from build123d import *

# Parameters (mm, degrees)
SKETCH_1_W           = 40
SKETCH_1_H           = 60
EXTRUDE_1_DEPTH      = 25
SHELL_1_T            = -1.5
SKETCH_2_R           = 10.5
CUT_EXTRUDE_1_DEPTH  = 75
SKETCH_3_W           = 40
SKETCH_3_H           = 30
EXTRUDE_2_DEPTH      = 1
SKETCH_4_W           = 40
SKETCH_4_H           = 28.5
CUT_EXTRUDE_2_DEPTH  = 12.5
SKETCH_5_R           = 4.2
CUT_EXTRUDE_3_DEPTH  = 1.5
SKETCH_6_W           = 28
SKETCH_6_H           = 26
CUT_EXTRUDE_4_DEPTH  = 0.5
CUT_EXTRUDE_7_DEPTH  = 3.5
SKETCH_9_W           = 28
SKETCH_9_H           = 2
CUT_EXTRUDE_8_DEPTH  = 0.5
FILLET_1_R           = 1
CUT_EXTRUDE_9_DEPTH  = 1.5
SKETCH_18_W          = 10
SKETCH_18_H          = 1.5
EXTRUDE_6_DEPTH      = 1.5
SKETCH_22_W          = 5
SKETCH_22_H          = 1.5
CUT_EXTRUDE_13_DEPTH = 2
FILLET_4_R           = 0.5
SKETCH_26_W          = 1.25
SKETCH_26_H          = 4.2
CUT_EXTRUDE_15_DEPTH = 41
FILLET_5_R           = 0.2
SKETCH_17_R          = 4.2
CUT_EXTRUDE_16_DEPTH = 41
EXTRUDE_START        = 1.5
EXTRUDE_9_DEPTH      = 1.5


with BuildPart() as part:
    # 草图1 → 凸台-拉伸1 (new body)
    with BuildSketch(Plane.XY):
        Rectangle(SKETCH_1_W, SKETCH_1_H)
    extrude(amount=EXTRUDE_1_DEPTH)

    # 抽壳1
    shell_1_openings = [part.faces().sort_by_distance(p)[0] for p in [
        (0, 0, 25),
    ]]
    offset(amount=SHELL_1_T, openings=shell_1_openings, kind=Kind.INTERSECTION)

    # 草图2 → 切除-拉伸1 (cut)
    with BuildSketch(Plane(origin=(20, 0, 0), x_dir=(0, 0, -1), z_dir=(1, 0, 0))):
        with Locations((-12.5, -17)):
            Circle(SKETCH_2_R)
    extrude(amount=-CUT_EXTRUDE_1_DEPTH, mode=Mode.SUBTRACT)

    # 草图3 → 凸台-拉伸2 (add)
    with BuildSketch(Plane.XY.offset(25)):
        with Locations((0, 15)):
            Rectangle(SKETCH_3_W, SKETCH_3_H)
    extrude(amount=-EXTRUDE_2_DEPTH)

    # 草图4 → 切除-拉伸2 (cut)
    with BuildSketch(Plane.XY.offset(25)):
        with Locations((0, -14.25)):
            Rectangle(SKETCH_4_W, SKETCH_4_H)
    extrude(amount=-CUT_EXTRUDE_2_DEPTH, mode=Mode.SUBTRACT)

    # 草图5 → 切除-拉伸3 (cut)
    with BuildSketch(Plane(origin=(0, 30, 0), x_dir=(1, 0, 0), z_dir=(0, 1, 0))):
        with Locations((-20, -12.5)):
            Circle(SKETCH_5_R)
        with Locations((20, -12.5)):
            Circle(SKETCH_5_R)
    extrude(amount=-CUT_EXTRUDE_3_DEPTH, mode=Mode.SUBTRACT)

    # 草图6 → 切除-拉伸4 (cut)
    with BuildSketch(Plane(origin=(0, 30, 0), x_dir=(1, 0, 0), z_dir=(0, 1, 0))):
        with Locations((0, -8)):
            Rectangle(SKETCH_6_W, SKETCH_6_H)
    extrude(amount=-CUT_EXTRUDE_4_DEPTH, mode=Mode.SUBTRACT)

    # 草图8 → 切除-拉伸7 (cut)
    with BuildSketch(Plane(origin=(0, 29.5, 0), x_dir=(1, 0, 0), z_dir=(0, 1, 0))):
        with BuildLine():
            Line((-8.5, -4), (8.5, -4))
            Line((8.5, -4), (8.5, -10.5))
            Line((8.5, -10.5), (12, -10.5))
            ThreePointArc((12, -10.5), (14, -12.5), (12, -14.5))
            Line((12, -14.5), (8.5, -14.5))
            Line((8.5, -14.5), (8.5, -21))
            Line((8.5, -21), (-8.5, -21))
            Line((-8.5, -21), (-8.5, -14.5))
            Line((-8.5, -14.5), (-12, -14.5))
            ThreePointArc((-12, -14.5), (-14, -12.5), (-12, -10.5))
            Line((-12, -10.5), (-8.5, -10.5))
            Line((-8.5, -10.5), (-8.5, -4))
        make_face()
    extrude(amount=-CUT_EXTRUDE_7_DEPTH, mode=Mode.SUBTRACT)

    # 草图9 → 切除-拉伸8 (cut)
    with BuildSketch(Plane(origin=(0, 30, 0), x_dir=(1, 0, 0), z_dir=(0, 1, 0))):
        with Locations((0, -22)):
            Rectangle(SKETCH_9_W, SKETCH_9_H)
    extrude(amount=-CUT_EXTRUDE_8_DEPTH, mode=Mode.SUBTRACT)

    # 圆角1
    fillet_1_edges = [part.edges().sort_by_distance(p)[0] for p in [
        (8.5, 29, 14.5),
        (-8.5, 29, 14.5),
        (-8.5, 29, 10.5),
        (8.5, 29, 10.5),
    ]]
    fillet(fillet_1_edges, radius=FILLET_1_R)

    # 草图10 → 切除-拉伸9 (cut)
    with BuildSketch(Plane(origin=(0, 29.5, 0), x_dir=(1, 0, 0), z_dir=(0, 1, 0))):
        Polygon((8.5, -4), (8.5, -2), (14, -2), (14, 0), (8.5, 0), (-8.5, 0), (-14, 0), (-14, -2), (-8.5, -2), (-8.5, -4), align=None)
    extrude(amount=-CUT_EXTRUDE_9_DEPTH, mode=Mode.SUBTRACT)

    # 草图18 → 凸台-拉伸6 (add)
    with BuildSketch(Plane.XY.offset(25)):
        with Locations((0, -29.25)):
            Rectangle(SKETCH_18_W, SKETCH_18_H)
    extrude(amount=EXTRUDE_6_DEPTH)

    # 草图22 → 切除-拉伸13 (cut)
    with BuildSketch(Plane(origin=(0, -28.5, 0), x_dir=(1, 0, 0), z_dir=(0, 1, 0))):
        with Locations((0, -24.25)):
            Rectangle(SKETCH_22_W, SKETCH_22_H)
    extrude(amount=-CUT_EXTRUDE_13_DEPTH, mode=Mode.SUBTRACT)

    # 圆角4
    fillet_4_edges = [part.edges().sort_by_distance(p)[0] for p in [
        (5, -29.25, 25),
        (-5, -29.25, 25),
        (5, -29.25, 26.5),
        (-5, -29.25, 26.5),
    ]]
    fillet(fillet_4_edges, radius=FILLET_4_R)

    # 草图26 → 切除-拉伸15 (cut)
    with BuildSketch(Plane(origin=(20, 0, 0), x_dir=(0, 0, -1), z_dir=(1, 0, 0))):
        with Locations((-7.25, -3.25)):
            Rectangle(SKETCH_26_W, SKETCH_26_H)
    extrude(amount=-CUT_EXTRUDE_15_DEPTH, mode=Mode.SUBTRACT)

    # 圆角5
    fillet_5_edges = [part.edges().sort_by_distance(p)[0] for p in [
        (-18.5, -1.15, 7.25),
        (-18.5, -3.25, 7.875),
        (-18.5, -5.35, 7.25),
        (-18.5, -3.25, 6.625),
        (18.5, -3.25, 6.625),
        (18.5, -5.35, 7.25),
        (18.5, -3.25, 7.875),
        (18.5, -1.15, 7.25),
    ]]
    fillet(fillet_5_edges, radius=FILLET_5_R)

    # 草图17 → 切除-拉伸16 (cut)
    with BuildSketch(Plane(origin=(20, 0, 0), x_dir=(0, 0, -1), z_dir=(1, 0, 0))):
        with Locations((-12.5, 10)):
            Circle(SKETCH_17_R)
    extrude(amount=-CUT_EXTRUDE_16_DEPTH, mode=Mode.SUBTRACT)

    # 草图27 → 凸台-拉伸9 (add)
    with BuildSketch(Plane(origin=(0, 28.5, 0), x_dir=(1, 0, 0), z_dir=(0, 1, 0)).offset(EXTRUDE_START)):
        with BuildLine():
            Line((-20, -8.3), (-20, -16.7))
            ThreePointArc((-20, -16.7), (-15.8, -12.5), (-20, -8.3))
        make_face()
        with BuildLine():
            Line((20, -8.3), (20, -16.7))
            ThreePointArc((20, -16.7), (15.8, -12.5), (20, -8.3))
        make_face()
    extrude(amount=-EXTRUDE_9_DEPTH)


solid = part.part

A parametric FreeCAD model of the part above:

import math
import FreeCAD as App
import Part
import Sketcher
from FreeCAD import Vector
Q = App.Units.Quantity


def edges_at(feature, points):
    """Names of the edges that pass closest to the given points."""
    edges = feature.Shape.Edges
    near = lambda p: min(range(len(edges)), key=lambda i: edges[i].distToShape(Part.Vertex(*p))[0])
    return sorted({f"Edge{near(p) + 1}" for p in points})


def faces_at(feature, points):
    """Names of the faces that lie closest to the given points."""
    faces = feature.Shape.Faces
    near = lambda p: min(range(len(faces)), key=lambda i: faces[i].distToShape(Part.Vertex(*p))[0])
    return sorted({f"Face{near(p) + 1}" for p in points})


def add_polygon(sketch, points):
    """Adds a closed chain of lines whose ends are joined by coincident constraints."""
    first, n = sketch.GeometryCount, len(points)
    for a, b in zip(points, points[1:] + points[:1]):
        sketch.addGeometry(Part.LineSegment(App.Vector(*a, 0), App.Vector(*b, 0)), False)
    for i in range(n):
        sketch.addConstraint(Sketcher.Constraint("Coincident", first + i, 2, first + (i + 1) % n, 1))

doc = App.newDocument("Part")
body = doc.addObject("PartDesign::Body", "Body")

sketch1 = body.newObject("Sketcher::SketchObject", "Sketch")
sketch1.AttachmentSupport = (doc.getObject("XY_Plane"), [""])
sketch1.MapMode = "FlatFace"
add_polygon(sketch1, [(-20, 30), (-20, -30), (20, -30), (20, 30)])
sketch1.addConstraint(Sketcher.Constraint("Vertical", 0))
sketch1.addConstraint(Sketcher.Constraint("Horizontal", 1))
sketch1.addConstraint(Sketcher.Constraint("Vertical", 2))
sketch1.addConstraint(Sketcher.Constraint("Horizontal", 3))
sketch1.addConstraint(Sketcher.Constraint("Symmetric", 0, 2, 2, 2, -1, 1))
sketch1.addConstraint(Sketcher.Constraint("DistanceX", 1, 1, 1, 2, Q("40 mm")))
sketch1.addConstraint(Sketcher.Constraint("DistanceY", 0, 2, 0, 1, Q("60 mm")))
pad1 = body.newObject("PartDesign::Pad", "Pad")
pad1.Profile = sketch1
pad1.Length = 25
doc.recompute()

thickness = body.newObject("PartDesign::Thickness", "Thickness")
thickness.Base = (pad1, faces_at(pad1, [(0, 0, 25)]))
thickness.Value = 1.5
thickness.Reversed = True
thickness.Join = "Intersection"

sketch2 = body.newObject("Sketcher::SketchObject", "Sketch001")
sketch2.AttachmentSupport = (doc.getObject("YZ_Plane"), [""])
sketch2.MapMode = "FlatFace"
sketch2.AttachmentOffset = App.Placement(Vector(0, 0, 20), App.Rotation())
sketch2.addGeometry(Part.Circle(Vector(-17, 12, 0), Vector(0, 0, 1), 10), False)
sketch2.addConstraint(Sketcher.Constraint("Diameter", 0, Q("21 mm")))
sketch2.addConstraint(Sketcher.Constraint("DistanceX", 0, 3, -1, 1, Q("17 mm")))
sketch2.addConstraint(Sketcher.Constraint("DistanceY", -1, 1, 0, 3, Q("12.5 mm")))
pocket1 = body.newObject("PartDesign::Pocket", "Pocket")
pocket1.Profile = sketch2
pocket1.Length = 75

sketch3 = body.newObject("Sketcher::SketchObject", "Sketch002")
sketch3.AttachmentSupport = (doc.getObject("XY_Plane"), [""])
sketch3.MapMode = "FlatFace"
sketch3.AttachmentOffset = App.Placement(Vector(0, 0, 25), App.Rotation())
add_polygon(sketch3, [(-20, 30), (-20, 0), (20, 0), (20, 30)])
sketch3.addConstraint(Sketcher.Constraint("Vertical", 0))
sketch3.addConstraint(Sketcher.Constraint("Horizontal", 1))
sketch3.addConstraint(Sketcher.Constraint("Vertical", 2))
sketch3.addConstraint(Sketcher.Constraint("Horizontal", 3))
sketch3.addConstraint(Sketcher.Constraint("Symmetric", 0, 2, 1, 2, -1, 1))
sketch3.addConstraint(Sketcher.Constraint("DistanceX", 1, 1, 1, 2, Q("40 mm")))
sketch3.addConstraint(Sketcher.Constraint("DistanceY", 0, 2, 0, 1, Q("30 mm")))
pad2 = body.newObject("PartDesign::Pad", "Pad001")
pad2.Profile = sketch3
pad2.Length = 1
pad2.Reversed = True

sketch4 = body.newObject("Sketcher::SketchObject", "Sketch003")
sketch4.AttachmentSupport = (doc.getObject("XY_Plane"), [""])
sketch4.MapMode = "FlatFace"
sketch4.AttachmentOffset = App.Placement(Vector(0, 0, 25), App.Rotation())
add_polygon(sketch4, [(-20, 0), (-20, -28), (20, -28), (20, 0)])
sketch4.addConstraint(Sketcher.Constraint("Vertical", 0))
sketch4.addConstraint(Sketcher.Constraint("Horizontal", 1))
sketch4.addConstraint(Sketcher.Constraint("Vertical", 2))
sketch4.addConstraint(Sketcher.Constraint("Horizontal", 3))
sketch4.addConstraint(Sketcher.Constraint("Symmetric", 2, 2, 3, 2, -1, 1))
sketch4.addConstraint(Sketcher.Constraint("DistanceX", 1, 1, 1, 2, Q("40 mm")))
sketch4.addConstraint(Sketcher.Constraint("DistanceY", 0, 2, 0, 1, Q("28.5 mm")))
pocket2 = body.newObject("PartDesign::Pocket", "Pocket001")
pocket2.Profile = sketch4
pocket2.Length = 12.5

sketch5 = body.newObject("Sketcher::SketchObject", "Sketch004")
sketch5.AttachmentSupport = (doc.getObject("XZ_Plane"), [""])
sketch5.MapMode = "FlatFace"
sketch5.AttachmentOffset = App.Placement(Vector(0, 0, -30), App.Rotation())
sketch5.addGeometry(Part.Circle(Vector(-20, 12.5, 0), Vector(0, 0, 1), 4.2), False)
sketch5.addGeometry(Part.Circle(Vector(20, 12.5, 0), Vector(0, 0, 1), 4.2), False)
sketch5.addConstraint(Sketcher.Constraint("Equal", 0, 1))
sketch5.addConstraint(Sketcher.Constraint("Symmetric", 0, 3, 1, 3, -2))
sketch5.addConstraint(Sketcher.Constraint("Diameter", 0, Q("8.4 mm")))
sketch5.addConstraint(Sketcher.Constraint("DistanceX", 0, 3, -1, 1, Q("20 mm")))
sketch5.addConstraint(Sketcher.Constraint("DistanceY", -1, 1, 0, 3, Q("12.5 mm")))
pocket3 = body.newObject("PartDesign::Pocket", "Pocket002")
pocket3.Profile = sketch5
pocket3.Length = 1.5
pocket3.Reversed = True

sketch6 = body.newObject("Sketcher::SketchObject", "Sketch005")
sketch6.AttachmentSupport = (doc.getObject("XZ_Plane"), [""])
sketch6.MapMode = "FlatFace"
sketch6.AttachmentOffset = App.Placement(Vector(0, 0, -30), App.Rotation())
add_polygon(sketch6, [(-14, -5), (-14, 21), (14, 21), (14, -5)])
sketch6.addConstraint(Sketcher.Constraint("Vertical", 0))
sketch6.addConstraint(Sketcher.Constraint("Horizontal", 1))
sketch6.addConstraint(Sketcher.Constraint("Vertical", 2))
sketch6.addConstraint(Sketcher.Constraint("Horizontal", 3))
sketch6.addConstraint(Sketcher.Constraint("DistanceX", 1, 1, 1, 2, Q("28 mm")))
sketch6.addConstraint(Sketcher.Constraint("DistanceY", 0, 1, 0, 2, Q("26 mm")))
sketch6.addConstraint(Sketcher.Constraint("DistanceX", 0, 2, -1, 1, Q("14 mm")))
sketch6.addConstraint(Sketcher.Constraint("DistanceY", -1, 1, 0, 2, Q("21 mm")))
pocket4 = body.newObject("PartDesign::Pocket", "Pocket003")
pocket4.Profile = sketch6
pocket4.Length = 0.5
pocket4.Reversed = True

sketch7 = body.newObject("Sketcher::SketchObject", "Sketch006")
sketch7.AttachmentSupport = (doc.getObject("XZ_Plane"), [""])
sketch7.MapMode = "FlatFace"
sketch7.AttachmentOffset = App.Placement(Vector(0, 0, -29.5), App.Rotation())
sketch7.addGeometry(Part.LineSegment(Vector(8.5, 4, 0), Vector(-8.5, 4, 0)), False)
sketch7.addGeometry(Part.LineSegment(Vector(-8.5, 4, 0), Vector(-8.5, 10.5, 0)), False)
sketch7.addGeometry(Part.LineSegment(Vector(-8.5, 10.5, 0), Vector(-12, 10.5, 0)), False)
sketch7.addGeometry(Part.ArcOfCircle(Part.Circle(Vector(-12, 12.5, 0), Vector(0, 0, 1), 2), math.radians(90), math.radians(270)), False)
sketch7.addGeometry(Part.LineSegment(Vector(-12, 14.5, 0), Vector(-8.5, 14.5, 0)), False)
sketch7.addGeometry(Part.LineSegment(Vector(-8.5, 14.5, 0), Vector(-8.5, 21, 0)), False)
sketch7.addGeometry(Part.LineSegment(Vector(-8.5, 21, 0), Vector(8.5, 21, 0)), False)
sketch7.addGeometry(Part.LineSegment(Vector(8.5, 21, 0), Vector(8.5, 14.5, 0)), False)
sketch7.addGeometry(Part.LineSegment(Vector(8.5, 14.5, 0), Vector(12, 14.5, 0)), False)
sketch7.addGeometry(Part.ArcOfCircle(Part.Circle(Vector(12, 12.5, 0), Vector(0, 0, 1), 2), math.radians(-90), math.radians(90)), False)
sketch7.addGeometry(Part.LineSegment(Vector(12, 10.5, 0), Vector(8.5, 10.5, 0)), False)
sketch7.addGeometry(Part.LineSegment(Vector(8.5, 10.5, 0), Vector(8.5, 4, 0)), False)
sketch7.addConstraint(Sketcher.Constraint("Coincident", 0, 2, 1, 1))
sketch7.addConstraint(Sketcher.Constraint("Coincident", 1, 2, 2, 1))
sketch7.addConstraint(Sketcher.Constraint("Tangent", 2, 2, 3, 2))
sketch7.addConstraint(Sketcher.Constraint("Tangent", 3, 1, 4, 1))
sketch7.addConstraint(Sketcher.Constraint("Coincident", 4, 2, 5, 1))
sketch7.addConstraint(Sketcher.Constraint("Coincident", 5, 2, 6, 1))
sketch7.addConstraint(Sketcher.Constraint("Coincident", 6, 2, 7, 1))
sketch7.addConstraint(Sketcher.Constraint("Coincident", 7, 2, 8, 1))
sketch7.addConstraint(Sketcher.Constraint("Tangent", 8, 2, 9, 2))
sketch7.addConstraint(Sketcher.Constraint("Tangent", 9, 1, 10, 1))
sketch7.addConstraint(Sketcher.Constraint("Coincident", 10, 2, 11, 1))
sketch7.addConstraint(Sketcher.Constraint("Coincident", 11, 2, 0, 1))
sketch7.addConstraint(Sketcher.Constraint("Horizontal", 0))
sketch7.addConstraint(Sketcher.Constraint("Vertical", 1))
sketch7.addConstraint(Sketcher.Constraint("Horizontal", 2))
sketch7.addConstraint(Sketcher.Constraint("Horizontal", 4))
sketch7.addConstraint(Sketcher.Constraint("Vertical", 5))
sketch7.addConstraint(Sketcher.Constraint("Horizontal", 6))
sketch7.addConstraint(Sketcher.Constraint("Vertical", 7))
sketch7.addConstraint(Sketcher.Constraint("Horizontal", 8))
sketch7.addConstraint(Sketcher.Constraint("Horizontal", 10))
sketch7.addConstraint(Sketcher.Constraint("Vertical", 11))
sketch7.addConstraint(Sketcher.Constraint("Equal", 3, 9))
sketch7.addConstraint(Sketcher.Constraint("Symmetric", 3, 3, 9, 3, -2))
sketch7.addConstraint(Sketcher.Constraint("Vertical", 1, 2, 4, 2))
sketch7.addConstraint(Sketcher.Constraint("Vertical", 7, 2, 10, 2))
sketch7.addConstraint(Sketcher.Constraint("Equal", 4, 8))
sketch7.addConstraint(Sketcher.Constraint("Equal", 1, 5))
sketch7.addConstraint(Sketcher.Constraint("Radius", 3, Q("2 mm")))
sketch7.addConstraint(Sketcher.Constraint("DistanceX", 0, 2, 0, 1, Q("17 mm")))
sketch7.addConstraint(Sketcher.Constraint("DistanceX", 2, 2, 2, 1, Q("3.5 mm")))
sketch7.addConstraint(Sketcher.Constraint("DistanceY", 1, 1, 1, 2, Q("6.5 mm")))
sketch7.addConstraint(Sketcher.Constraint("DistanceY", -1, 1, 0, 2, Q("4 mm")))
pocket5 = body.newObject("PartDesign::Pocket", "Pocket004")
pocket5.Profile = sketch7
pocket5.Length = 3.5
pocket5.Reversed = True

sketch8 = body.newObject("Sketcher::SketchObject", "Sketch007")
sketch8.AttachmentSupport = (doc.getObject("XZ_Plane"), [""])
sketch8.MapMode = "FlatFace"
sketch8.AttachmentOffset = App.Placement(Vector(0, 0, -30), App.Rotation())
add_polygon(sketch8, [(-14, 21), (-14, 23), (14, 23), (14, 21)])
sketch8.addConstraint(Sketcher.Constraint("Vertical", 0))
sketch8.addConstraint(Sketcher.Constraint("Horizontal", 1))
sketch8.addConstraint(Sketcher.Constraint("Vertical", 2))
sketch8.addConstraint(Sketcher.Constraint("Horizontal", 3))
sketch8.addConstraint(Sketcher.Constraint("DistanceX", 1, 1, 1, 2, Q("28 mm")))
sketch8.addConstraint(Sketcher.Constraint("DistanceY", 0, 1, 0, 2, Q("2 mm")))
sketch8.addConstraint(Sketcher.Constraint("DistanceX", 0, 2, -1, 1, Q("14 mm")))
sketch8.addConstraint(Sketcher.Constraint("DistanceY", -1, 1, 0, 2, Q("23 mm")))
pocket6 = body.newObject("PartDesign::Pocket", "Pocket005")
pocket6.Profile = sketch8
pocket6.Length = 0.5
pocket6.Reversed = True
doc.recompute()

fillet = body.newObject("PartDesign::Fillet", "Fillet")
fillet.Base = (pocket6, edges_at(pocket6, [
    (8.5, 29, 14.5),
    (-8.5, 29, 14.5),
    (-8.5, 29, 10.5),
    (8.5, 29, 10.5),
]))
fillet.Radius = 1

sketch9 = body.newObject("Sketcher::SketchObject", "Sketch008")
sketch9.AttachmentSupport = (doc.getObject("XZ_Plane"), [""])
sketch9.MapMode = "FlatFace"
sketch9.AttachmentOffset = App.Placement(Vector(0, 0, -29.5), App.Rotation())
add_polygon(sketch9, [(8.5, 4), (8.5, 2), (14, 2), (14, 0), (-14, 0), (-14, 2), (-8.5, 2), (-8.5, 4)])
sketch9.addConstraint(Sketcher.Constraint("Vertical", 0))
sketch9.addConstraint(Sketcher.Constraint("Horizontal", 1))
sketch9.addConstraint(Sketcher.Constraint("Vertical", 2))
sketch9.addConstraint(Sketcher.Constraint("Horizontal", 3))
sketch9.addConstraint(Sketcher.Constraint("Vertical", 4))
sketch9.addConstraint(Sketcher.Constraint("Horizontal", 5))
sketch9.addConstraint(Sketcher.Constraint("Vertical", 6))
sketch9.addConstraint(Sketcher.Constraint("Horizontal", 7))
sketch9.addConstraint(Sketcher.Constraint("Symmetric", 2, 2, 3, 2, -1, 1))
sketch9.addConstraint(Sketcher.Constraint("Symmetric", 0, 2, 5, 2, -2))
sketch9.addConstraint(Sketcher.Constraint("Equal", 0, 2))
sketch9.addConstraint(Sketcher.Constraint("DistanceX", 3, 2, 3, 1, Q("28 mm")))
sketch9.addConstraint(Sketcher.Constraint("DistanceX", 7, 1, 7, 2, Q("17 mm")))
sketch9.addConstraint(Sketcher.Constraint("DistanceY", 0, 2, 0, 1, Q("2 mm")))
pocket7 = body.newObject("PartDesign::Pocket", "Pocket006")
pocket7.Profile = sketch9
pocket7.Length = 1.5
pocket7.Reversed = True

sketch10 = body.newObject("Sketcher::SketchObject", "Sketch009")
sketch10.AttachmentSupport = (doc.getObject("XY_Plane"), [""])
sketch10.MapMode = "FlatFace"
sketch10.AttachmentOffset = App.Placement(Vector(0, 0, 25), App.Rotation())
add_polygon(sketch10, [(-5, -28.5), (-5, -30), (5, -30), (5, -28.5)])
sketch10.addConstraint(Sketcher.Constraint("Vertical", 0))
sketch10.addConstraint(Sketcher.Constraint("Horizontal", 1))
sketch10.addConstraint(Sketcher.Constraint("Vertical", 2))
sketch10.addConstraint(Sketcher.Constraint("Horizontal", 3))
sketch10.addConstraint(Sketcher.Constraint("DistanceX", 1, 1, 1, 2, Q("10 mm")))
sketch10.addConstraint(Sketcher.Constraint("DistanceY", 0, 2, 0, 1, Q("1.5 mm")))
sketch10.addConstraint(Sketcher.Constraint("DistanceX", 0, 2, -1, 1, Q("5 mm")))
sketch10.addConstraint(Sketcher.Constraint("DistanceY", 0, 2, -1, 1, Q("30 mm")))
pad3 = body.newObject("PartDesign::Pad", "Pad002")
pad3.Profile = sketch10
pad3.Length = 1.5

sketch11 = body.newObject("Sketcher::SketchObject", "Sketch010")
sketch11.AttachmentSupport = (doc.getObject("XZ_Plane"), [""])
sketch11.MapMode = "FlatFace"
sketch11.AttachmentOffset = App.Placement(Vector(0, 0, 28.5), App.Rotation())
add_polygon(sketch11, [(-2.5, 23.5), (-2.5, 25), (2.5, 25), (2.5, 23.5)])
sketch11.addConstraint(Sketcher.Constraint("Vertical", 0))
sketch11.addConstraint(Sketcher.Constraint("Horizontal", 1))
sketch11.addConstraint(Sketcher.Constraint("Vertical", 2))
sketch11.addConstraint(Sketcher.Constraint("Horizontal", 3))
sketch11.addConstraint(Sketcher.Constraint("DistanceX", 1, 1, 1, 2, Q("5 mm")))
sketch11.addConstraint(Sketcher.Constraint("DistanceY", 0, 1, 0, 2, Q("1.5 mm")))
sketch11.addConstraint(Sketcher.Constraint("DistanceY", -1, 1, 0, 2, Q("25 mm")))
sketch11.addConstraint(Sketcher.Constraint("DistanceX", 0, 2, -1, 1, Q("2.5 mm")))
pocket8 = body.newObject("PartDesign::Pocket", "Pocket007")
pocket8.Profile = sketch11
pocket8.Length = 2
pocket8.Reversed = True
doc.recompute()

fillet2 = body.newObject("PartDesign::Fillet", "Fillet001")
fillet2.Base = (pocket8, edges_at(pocket8, [
    (5, -29.25, 25),
    (-5, -29.25, 25),
    (5, -29.25, 26.5),
    (-5, -29.25, 26.5),
]))
fillet2.Radius = 0.5

sketch12 = body.newObject("Sketcher::SketchObject", "Sketch011")
sketch12.AttachmentSupport = (doc.getObject("YZ_Plane"), [""])
sketch12.MapMode = "FlatFace"
sketch12.AttachmentOffset = App.Placement(Vector(0, 0, 20), App.Rotation())
add_polygon(sketch12, [(-1.1, 7.9), (-5.3, 7.9), (-5.3, 6.6), (-1.1, 6.6)])
sketch12.addConstraint(Sketcher.Constraint("Horizontal", 0))
sketch12.addConstraint(Sketcher.Constraint("Vertical", 1))
sketch12.addConstraint(Sketcher.Constraint("Horizontal", 2))
sketch12.addConstraint(Sketcher.Constraint("Vertical", 3))
sketch12.addConstraint(Sketcher.Constraint("DistanceX", 0, 2, 0, 1, Q("4.2 mm")))
sketch12.addConstraint(Sketcher.Constraint("DistanceY", 1, 2, 1, 1, Q("1.25 mm")))
sketch12.addConstraint(Sketcher.Constraint("DistanceX", 0, 2, -1, 1, Q("5.35 mm")))
sketch12.addConstraint(Sketcher.Constraint("DistanceY", -1, 1, 0, 2, Q("7.875 mm")))
pocket9 = body.newObject("PartDesign::Pocket", "Pocket008")
pocket9.Profile = sketch12
pocket9.Length = 41
doc.recompute()

fillet3 = body.newObject("PartDesign::Fillet", "Fillet002")
fillet3.Base = (pocket9, edges_at(pocket9, [
    (-18.5, -1.15, 7.25),
    (-18.5, -3.25, 7.875),
    (-18.5, -5.35, 7.25),
    (-18.5, -3.25, 6.625),
    (18.5, -3.25, 6.625),
    (18.5, -5.35, 7.25),
    (18.5, -3.25, 7.875),
    (18.5, -1.15, 7.25),
]))
fillet3.Radius = 0.2

sketch13 = body.newObject("Sketcher::SketchObject", "Sketch012")
sketch13.AttachmentSupport = (doc.getObject("YZ_Plane"), [""])
sketch13.MapMode = "FlatFace"
sketch13.AttachmentOffset = App.Placement(Vector(0, 0, 20), App.Rotation())
sketch13.addGeometry(Part.Circle(Vector(10, 12.5, 0), Vector(0, 0, 1), 4.2), False)
sketch13.addConstraint(Sketcher.Constraint("Diameter", 0, Q("8.4 mm")))
sketch13.addConstraint(Sketcher.Constraint("DistanceX", -1, 1, 0, 3, Q("10 mm")))
sketch13.addConstraint(Sketcher.Constraint("DistanceY", -1, 1, 0, 3, Q("12.5 mm")))
pocket10 = body.newObject("PartDesign::Pocket", "Pocket009")
pocket10.Profile = sketch13
pocket10.Length = 41

sketch14 = body.newObject("Sketcher::SketchObject", "Sketch013")
sketch14.AttachmentSupport = (doc.getObject("XZ_Plane"), [""])
sketch14.MapMode = "FlatFace"
sketch14.AttachmentOffset = App.Placement(Vector(0, 0, -30), App.Rotation())
sketch14.addGeometry(Part.LineSegment(Vector(-20, 8.3, 0), Vector(-20, 16.7, 0)), False)
sketch14.addGeometry(Part.ArcOfCircle(Part.Circle(Vector(-20, 12.5, 0), Vector(0, 0, 1), 4.2), math.radians(-90), math.radians(90)), False)
sketch14.addGeometry(Part.LineSegment(Vector(20, 16.7, 0), Vector(20, 8.3, 0)), False)
sketch14.addGeometry(Part.ArcOfCircle(Part.Circle(Vector(20, 12.5, 0), Vector(0, 0, 1), 4.2), math.radians(90), math.radians(270)), False)
sketch14.addConstraint(Sketcher.Constraint("Coincident", 0, 1, 1, 1))
sketch14.addConstraint(Sketcher.Constraint("Coincident", 1, 2, 0, 2))
sketch14.addConstraint(Sketcher.Constraint("Coincident", 2, 1, 3, 1))
sketch14.addConstraint(Sketcher.Constraint("Coincident", 3, 2, 2, 2))
sketch14.addConstraint(Sketcher.Constraint("Vertical", 0))
sketch14.addConstraint(Sketcher.Constraint("Vertical", 2))
sketch14.addConstraint(Sketcher.Constraint("Equal", 1, 3))
sketch14.addConstraint(Sketcher.Constraint("Symmetric", 1, 3, 3, 3, -2))
sketch14.addConstraint(Sketcher.Constraint("Vertical", 1, 3, 0, 1))
sketch14.addConstraint(Sketcher.Constraint("Vertical", 3, 3, 2, 1))
sketch14.addConstraint(Sketcher.Constraint("Radius", 1, Q("4.2 mm")))
sketch14.addConstraint(Sketcher.Constraint("DistanceX", 1, 3, -1, 1, Q("20 mm")))
sketch14.addConstraint(Sketcher.Constraint("DistanceY", -1, 1, 1, 3, Q("12.5 mm")))
pad4 = body.newObject("PartDesign::Pad", "Pad003")
pad4.Profile = sketch14
pad4.Length = 1.5

doc.recompute()
